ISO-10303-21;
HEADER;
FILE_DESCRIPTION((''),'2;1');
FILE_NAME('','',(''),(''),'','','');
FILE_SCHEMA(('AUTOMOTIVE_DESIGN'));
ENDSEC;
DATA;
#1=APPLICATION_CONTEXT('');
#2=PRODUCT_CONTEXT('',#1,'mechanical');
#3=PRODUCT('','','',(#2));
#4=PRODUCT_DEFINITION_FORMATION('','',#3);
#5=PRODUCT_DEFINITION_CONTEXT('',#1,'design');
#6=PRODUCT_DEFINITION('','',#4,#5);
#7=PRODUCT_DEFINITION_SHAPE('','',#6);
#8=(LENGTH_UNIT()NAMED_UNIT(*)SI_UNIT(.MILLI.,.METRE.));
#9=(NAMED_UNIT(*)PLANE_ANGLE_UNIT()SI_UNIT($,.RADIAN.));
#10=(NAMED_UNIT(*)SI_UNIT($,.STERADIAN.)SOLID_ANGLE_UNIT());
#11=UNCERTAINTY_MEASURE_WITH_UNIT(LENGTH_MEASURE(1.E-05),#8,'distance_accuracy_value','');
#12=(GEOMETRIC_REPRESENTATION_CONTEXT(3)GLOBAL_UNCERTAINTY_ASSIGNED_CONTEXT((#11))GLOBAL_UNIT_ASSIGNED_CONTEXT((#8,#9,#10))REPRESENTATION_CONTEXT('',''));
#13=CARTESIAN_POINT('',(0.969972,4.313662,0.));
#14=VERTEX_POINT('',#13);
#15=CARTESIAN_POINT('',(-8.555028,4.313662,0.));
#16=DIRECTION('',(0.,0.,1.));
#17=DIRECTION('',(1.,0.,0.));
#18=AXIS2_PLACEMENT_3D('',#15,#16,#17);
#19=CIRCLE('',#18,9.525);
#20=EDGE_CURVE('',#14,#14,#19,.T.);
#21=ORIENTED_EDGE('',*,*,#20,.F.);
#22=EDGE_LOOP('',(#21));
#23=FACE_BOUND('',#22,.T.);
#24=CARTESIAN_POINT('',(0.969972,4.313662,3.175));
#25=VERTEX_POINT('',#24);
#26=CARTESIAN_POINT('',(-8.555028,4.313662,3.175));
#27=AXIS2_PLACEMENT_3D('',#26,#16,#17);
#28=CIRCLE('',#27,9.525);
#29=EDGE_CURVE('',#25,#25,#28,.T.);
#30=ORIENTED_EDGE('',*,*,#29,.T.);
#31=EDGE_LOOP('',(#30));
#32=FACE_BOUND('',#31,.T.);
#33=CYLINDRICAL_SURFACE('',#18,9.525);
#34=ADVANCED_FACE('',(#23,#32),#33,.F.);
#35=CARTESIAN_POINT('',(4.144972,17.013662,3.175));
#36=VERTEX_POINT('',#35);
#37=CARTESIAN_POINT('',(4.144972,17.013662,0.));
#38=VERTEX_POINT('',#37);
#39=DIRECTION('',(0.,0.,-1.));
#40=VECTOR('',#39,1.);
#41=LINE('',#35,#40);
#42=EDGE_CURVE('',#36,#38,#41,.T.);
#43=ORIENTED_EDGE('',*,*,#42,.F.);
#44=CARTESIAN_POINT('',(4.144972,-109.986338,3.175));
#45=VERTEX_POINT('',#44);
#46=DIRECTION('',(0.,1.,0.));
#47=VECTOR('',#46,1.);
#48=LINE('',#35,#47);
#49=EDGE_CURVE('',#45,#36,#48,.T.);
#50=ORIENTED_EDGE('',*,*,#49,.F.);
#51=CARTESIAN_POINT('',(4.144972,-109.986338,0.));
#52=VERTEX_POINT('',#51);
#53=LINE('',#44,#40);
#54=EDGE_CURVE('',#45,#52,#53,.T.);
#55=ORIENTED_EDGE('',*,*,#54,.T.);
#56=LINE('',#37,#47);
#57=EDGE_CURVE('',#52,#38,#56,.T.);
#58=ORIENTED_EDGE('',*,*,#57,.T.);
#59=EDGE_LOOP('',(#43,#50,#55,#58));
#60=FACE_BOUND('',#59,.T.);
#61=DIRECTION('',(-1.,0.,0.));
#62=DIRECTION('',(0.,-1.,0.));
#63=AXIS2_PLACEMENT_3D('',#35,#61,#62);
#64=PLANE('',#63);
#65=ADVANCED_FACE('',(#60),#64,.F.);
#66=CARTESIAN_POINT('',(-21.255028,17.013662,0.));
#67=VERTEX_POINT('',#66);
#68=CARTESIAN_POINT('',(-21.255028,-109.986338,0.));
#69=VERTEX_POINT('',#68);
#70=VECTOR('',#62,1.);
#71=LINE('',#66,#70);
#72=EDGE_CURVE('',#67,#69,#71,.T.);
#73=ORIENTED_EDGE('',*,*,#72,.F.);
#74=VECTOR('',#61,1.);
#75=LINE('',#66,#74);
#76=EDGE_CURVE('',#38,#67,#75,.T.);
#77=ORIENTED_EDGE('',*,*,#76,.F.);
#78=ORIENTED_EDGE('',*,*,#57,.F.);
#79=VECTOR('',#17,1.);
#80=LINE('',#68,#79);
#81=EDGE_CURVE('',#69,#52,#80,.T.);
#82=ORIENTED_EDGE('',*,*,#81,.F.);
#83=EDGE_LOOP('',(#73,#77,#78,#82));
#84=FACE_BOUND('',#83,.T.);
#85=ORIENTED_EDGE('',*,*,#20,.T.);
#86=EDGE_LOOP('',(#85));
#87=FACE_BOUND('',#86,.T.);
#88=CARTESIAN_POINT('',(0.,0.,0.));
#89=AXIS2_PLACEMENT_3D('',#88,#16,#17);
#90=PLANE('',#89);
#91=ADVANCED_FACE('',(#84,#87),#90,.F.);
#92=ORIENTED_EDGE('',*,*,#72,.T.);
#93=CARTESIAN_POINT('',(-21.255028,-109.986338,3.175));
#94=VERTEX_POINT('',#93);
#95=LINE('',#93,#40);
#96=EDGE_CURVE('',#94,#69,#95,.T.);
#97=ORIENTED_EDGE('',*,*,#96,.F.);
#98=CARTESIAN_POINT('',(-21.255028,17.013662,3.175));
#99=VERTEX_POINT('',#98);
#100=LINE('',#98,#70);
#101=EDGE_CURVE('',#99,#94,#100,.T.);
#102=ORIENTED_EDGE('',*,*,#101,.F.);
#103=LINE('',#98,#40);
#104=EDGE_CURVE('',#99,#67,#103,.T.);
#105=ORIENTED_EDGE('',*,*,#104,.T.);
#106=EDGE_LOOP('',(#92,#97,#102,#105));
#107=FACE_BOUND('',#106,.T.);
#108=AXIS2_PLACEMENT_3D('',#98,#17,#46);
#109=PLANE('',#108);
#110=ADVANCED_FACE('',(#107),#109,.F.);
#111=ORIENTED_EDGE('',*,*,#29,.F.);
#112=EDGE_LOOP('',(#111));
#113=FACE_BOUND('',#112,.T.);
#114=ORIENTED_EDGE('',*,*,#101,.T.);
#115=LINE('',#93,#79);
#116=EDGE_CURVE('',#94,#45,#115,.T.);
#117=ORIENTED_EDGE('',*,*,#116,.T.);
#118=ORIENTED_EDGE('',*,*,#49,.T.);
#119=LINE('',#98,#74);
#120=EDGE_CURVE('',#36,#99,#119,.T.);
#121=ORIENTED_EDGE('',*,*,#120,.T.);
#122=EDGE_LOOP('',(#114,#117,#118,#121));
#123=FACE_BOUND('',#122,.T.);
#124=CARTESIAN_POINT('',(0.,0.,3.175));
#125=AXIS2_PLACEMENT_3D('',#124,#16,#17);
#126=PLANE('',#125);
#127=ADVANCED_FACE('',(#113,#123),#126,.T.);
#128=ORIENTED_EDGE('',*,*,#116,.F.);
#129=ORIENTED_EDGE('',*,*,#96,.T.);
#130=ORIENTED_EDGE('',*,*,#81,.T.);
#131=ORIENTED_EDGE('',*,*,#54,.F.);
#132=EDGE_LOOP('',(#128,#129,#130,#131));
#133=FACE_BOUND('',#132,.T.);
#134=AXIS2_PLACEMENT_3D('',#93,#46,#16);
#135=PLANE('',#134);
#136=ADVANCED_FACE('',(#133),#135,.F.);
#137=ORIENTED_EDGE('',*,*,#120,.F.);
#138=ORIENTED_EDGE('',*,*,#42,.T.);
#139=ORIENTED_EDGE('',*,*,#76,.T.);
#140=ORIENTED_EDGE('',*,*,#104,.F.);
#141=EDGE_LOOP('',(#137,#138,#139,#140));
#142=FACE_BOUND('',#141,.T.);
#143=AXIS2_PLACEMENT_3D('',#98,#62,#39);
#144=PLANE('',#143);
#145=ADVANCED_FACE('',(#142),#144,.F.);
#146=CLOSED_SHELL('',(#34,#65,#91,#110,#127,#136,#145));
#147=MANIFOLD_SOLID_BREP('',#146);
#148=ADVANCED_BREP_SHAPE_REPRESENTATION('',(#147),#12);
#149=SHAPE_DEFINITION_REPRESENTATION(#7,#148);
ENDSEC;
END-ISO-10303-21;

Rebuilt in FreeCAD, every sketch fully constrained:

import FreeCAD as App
import Part
import Sketcher
Q = App.Units.Quantity


def add_polygon(sketch, points):
    """Adds a closed chain of lines whose ends are joined by coincident constraints."""
    first, n = sketch.GeometryCount, len(points)
    for a, b in zip(points, points[1:] + points[:1]):
        sketch.addGeometry(Part.LineSegment(App.Vector(*a, 0), App.Vector(*b, 0)), False)
    for i in range(n):
        sketch.addConstraint(Sketcher.Constraint("Coincident", first + i, 2, first + (i + 1) % n, 1))

doc = App.newDocument("Part")
body = doc.addObject("PartDesign::Body", "Body")

# Sketch on XY plane
sketch1 = doc.addObject("Sketcher::SketchObject", "Sketch")
body.addObject(sketch1)
sketch1.AttachmentSupport = (doc.XY_Plane, [""])
sketch1.MapMode = "FlatFace"
add_polygon(sketch1, [(-21, 17), (-21, -110), (4, -110), (4, 17)])  # lines 0-3
sketch1.addConstraint(Sketcher.Constraint("Vertical", 0))
sketch1.addConstraint(Sketcher.Constraint("Horizontal", 1))
sketch1.addConstraint(Sketcher.Constraint("Vertical", 2))
sketch1.addConstraint(Sketcher.Constraint("Horizontal", 3))
sketch1.addConstraint(Sketcher.Constraint("DistanceX", 1, 1, 1, 2, Q("1 in")))
sketch1.addConstraint(Sketcher.Constraint("DistanceY", 0, 2, 0, 1, Q("5 in")))
sketch1.addConstraint(Sketcher.Constraint("DistanceX", 0, 2, -1, 1, 21.255028))
sketch1.addConstraint(Sketcher.Constraint("DistanceY", 0, 2, -1, 1, 109.986338))
pad1 = doc.addObject("PartDesign::Pad", "Pad")
body.addObject(pad1)
pad1.Profile = sketch1
pad1.Length = Q("0.125 in")

# Sketch on XY plane
sketch2 = doc.addObject("Sketcher::SketchObject", "Sketch001")
body.addObject(sketch2)
sketch2.AttachmentSupport = (doc.XY_Plane, [""])
sketch2.MapMode = "FlatFace"
sketch2.AttachmentOffset = App.Placement(App.Vector(0, 0, 0.125 * 25.4), App.Rotation())
sketch2.addGeometry(Part.Circle(App.Vector(-9, 4, 0), App.Vector(0, 0, 1), 10), False)
sketch2.addConstraint(Sketcher.Constraint("Diameter", 0, Q("0.75 in")))
sketch2.addConstraint(Sketcher.Constraint("DistanceX", 0, 3, -1, 1, 8.555028))
sketch2.addConstraint(Sketcher.Constraint("DistanceY", -1, 1, 0, 3, 4.313662))
pocket1 = doc.addObject("PartDesign::Pocket", "Pocket")
body.addObject(pocket1)
pocket1.Profile = sketch2
pocket1.Length = Q("0.125 in")

doc.recompute()
